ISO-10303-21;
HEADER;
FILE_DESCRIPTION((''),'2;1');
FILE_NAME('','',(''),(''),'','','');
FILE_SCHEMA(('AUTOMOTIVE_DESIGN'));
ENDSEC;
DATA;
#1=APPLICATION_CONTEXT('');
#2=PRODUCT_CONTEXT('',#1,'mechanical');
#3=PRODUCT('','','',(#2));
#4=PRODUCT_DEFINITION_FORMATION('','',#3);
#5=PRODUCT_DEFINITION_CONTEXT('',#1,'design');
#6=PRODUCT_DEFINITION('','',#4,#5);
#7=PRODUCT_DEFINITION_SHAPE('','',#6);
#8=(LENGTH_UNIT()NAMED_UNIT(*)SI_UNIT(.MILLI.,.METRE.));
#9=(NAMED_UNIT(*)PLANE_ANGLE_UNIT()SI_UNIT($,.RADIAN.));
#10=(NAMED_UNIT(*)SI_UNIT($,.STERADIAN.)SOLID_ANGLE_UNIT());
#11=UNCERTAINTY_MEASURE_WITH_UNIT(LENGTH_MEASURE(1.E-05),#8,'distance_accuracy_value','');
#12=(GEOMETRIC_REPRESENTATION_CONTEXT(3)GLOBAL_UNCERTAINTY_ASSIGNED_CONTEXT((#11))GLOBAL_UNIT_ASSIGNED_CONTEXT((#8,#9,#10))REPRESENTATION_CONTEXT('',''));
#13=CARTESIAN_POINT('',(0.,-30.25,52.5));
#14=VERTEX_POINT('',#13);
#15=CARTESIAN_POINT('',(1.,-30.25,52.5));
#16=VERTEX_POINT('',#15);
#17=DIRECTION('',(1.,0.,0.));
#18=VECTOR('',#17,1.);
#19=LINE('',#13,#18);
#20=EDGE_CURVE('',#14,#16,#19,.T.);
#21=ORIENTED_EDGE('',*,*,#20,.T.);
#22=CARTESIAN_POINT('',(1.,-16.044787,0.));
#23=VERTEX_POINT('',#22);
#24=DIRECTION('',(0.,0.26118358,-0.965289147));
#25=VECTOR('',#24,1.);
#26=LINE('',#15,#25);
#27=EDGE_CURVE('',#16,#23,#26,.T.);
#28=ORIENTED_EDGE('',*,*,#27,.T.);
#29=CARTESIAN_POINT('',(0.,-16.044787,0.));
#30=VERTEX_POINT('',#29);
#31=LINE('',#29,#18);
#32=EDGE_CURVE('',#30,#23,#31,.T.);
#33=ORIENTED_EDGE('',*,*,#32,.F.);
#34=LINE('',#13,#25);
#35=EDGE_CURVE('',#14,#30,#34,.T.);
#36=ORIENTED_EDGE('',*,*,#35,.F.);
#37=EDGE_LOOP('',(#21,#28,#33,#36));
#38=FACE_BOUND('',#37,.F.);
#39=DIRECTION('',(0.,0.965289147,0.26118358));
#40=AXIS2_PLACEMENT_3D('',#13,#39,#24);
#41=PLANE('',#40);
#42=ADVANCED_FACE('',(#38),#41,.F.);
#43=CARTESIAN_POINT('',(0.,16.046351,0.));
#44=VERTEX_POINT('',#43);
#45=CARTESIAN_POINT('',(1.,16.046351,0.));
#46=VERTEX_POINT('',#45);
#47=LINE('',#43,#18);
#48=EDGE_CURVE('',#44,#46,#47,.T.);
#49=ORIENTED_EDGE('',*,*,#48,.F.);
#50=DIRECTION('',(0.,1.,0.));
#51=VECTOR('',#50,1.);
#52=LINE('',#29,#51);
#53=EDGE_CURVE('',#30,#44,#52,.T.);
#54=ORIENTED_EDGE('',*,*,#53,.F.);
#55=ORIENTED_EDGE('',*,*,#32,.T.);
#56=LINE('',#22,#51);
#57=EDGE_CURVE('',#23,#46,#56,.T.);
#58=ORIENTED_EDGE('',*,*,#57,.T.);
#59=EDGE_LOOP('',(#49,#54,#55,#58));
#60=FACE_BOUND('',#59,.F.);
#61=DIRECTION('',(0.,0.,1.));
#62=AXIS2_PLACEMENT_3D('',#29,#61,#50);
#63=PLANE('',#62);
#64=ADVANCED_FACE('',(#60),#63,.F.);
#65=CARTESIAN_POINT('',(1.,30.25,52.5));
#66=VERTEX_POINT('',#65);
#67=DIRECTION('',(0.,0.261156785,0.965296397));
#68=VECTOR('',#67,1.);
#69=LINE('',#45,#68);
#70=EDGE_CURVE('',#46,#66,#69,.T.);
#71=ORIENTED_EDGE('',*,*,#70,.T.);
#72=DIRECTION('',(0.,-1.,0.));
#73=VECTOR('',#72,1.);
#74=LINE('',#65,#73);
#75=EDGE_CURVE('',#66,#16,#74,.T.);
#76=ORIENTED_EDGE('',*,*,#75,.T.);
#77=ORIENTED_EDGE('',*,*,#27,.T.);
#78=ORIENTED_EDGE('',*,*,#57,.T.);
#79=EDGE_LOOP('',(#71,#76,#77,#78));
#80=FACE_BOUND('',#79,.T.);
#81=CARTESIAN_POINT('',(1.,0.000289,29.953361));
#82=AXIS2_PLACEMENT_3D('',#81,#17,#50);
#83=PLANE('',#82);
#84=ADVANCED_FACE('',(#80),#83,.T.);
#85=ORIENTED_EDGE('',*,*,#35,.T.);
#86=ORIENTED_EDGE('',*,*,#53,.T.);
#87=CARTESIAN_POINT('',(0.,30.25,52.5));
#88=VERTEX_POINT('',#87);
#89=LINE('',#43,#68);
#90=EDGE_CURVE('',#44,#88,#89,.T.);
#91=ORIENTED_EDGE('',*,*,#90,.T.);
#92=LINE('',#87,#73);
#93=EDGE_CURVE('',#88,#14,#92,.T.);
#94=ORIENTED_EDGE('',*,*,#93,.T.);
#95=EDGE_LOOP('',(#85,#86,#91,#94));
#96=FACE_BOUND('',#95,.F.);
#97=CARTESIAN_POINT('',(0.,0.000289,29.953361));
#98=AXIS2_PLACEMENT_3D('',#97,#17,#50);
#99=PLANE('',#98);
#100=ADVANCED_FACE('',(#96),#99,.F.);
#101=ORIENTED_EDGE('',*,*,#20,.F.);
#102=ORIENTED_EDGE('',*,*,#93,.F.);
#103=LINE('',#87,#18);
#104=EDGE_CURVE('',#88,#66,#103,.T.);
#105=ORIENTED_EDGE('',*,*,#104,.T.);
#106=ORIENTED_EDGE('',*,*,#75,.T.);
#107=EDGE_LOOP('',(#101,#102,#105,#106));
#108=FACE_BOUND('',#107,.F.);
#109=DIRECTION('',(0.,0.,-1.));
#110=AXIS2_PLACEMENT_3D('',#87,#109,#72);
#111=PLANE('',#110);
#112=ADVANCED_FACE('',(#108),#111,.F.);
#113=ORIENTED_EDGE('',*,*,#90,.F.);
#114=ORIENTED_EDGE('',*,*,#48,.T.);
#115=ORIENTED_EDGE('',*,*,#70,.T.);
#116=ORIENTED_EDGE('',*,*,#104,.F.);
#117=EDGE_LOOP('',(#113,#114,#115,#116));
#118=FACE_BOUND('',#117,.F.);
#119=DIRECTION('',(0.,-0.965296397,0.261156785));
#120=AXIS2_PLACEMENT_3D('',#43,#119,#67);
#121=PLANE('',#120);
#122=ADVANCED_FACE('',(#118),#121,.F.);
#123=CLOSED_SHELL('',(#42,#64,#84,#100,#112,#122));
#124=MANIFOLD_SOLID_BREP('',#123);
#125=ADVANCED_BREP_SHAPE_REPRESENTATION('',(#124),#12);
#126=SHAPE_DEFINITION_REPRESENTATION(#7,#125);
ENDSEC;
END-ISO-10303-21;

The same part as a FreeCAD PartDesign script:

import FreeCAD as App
import Part
import Sketcher

V = App.Vector
Q = App.Units.Quantity

doc = App.newDocument("Part")
body = doc.addObject("PartDesign::Body", "Body")

sketch1 = body.newObject("Sketcher::SketchObject", "Sketch")
sketch1.AttachmentSupport = (doc.getObject("YZ_Plane"), [""])
sketch1.MapMode = "FlatFace"
sketch1.addGeometry(Part.LineSegment(V(-16, 0, 0), V(16, 0, 0)), False)
sketch1.addGeometry(Part.LineSegment(V(16, 0, 0), V(30, 52, 0)), False)
sketch1.addGeometry(Part.LineSegment(V(30, 52, 0), V(-30, 52, 0)), False)
sketch1.addGeometry(Part.LineSegment(V(-30, 52, 0), V(-16, 0, 0)), False)
sketch1.addConstraint(Sketcher.Constraint("Coincident", 0, 2, 1, 1))
sketch1.addConstraint(Sketcher.Constraint("Coincident", 1, 2, 2, 1))
sketch1.addConstraint(Sketcher.Constraint("Coincident", 2, 2, 3, 1))
sketch1.addConstraint(Sketcher.Constraint("Coincident", 3, 2, 0, 1))
sketch1.addConstraint(Sketcher.Constraint("Horizontal", 0))
sketch1.addConstraint(Sketcher.Constraint("Horizontal", 2))
sketch1.addConstraint(Sketcher.Constraint("PointOnObject", 0, 2, -1))
sketch1.addConstraint(Sketcher.Constraint("DistanceX", 2, 2, 2, 1, Q("60.5 mm")))
sketch1.addConstraint(Sketcher.Constraint("DistanceY", -1, 1, 1, 2, Q("52.5 mm")))
sketch1.addConstraint(Sketcher.Constraint("DistanceX", -1, 1, 1, 2, Q("30.25 mm")))
sketch1.addConstraint(Sketcher.Constraint("Distance", 1, Q("54.38744 mm")))
sketch1.addConstraint(Sketcher.Constraint("Distance", 3, Q("54.387849 mm")))
pad1 = body.newObject("PartDesign::Pad", "Pad")
pad1.Profile = sketch1
pad1.Length = 1

doc.recompute()
